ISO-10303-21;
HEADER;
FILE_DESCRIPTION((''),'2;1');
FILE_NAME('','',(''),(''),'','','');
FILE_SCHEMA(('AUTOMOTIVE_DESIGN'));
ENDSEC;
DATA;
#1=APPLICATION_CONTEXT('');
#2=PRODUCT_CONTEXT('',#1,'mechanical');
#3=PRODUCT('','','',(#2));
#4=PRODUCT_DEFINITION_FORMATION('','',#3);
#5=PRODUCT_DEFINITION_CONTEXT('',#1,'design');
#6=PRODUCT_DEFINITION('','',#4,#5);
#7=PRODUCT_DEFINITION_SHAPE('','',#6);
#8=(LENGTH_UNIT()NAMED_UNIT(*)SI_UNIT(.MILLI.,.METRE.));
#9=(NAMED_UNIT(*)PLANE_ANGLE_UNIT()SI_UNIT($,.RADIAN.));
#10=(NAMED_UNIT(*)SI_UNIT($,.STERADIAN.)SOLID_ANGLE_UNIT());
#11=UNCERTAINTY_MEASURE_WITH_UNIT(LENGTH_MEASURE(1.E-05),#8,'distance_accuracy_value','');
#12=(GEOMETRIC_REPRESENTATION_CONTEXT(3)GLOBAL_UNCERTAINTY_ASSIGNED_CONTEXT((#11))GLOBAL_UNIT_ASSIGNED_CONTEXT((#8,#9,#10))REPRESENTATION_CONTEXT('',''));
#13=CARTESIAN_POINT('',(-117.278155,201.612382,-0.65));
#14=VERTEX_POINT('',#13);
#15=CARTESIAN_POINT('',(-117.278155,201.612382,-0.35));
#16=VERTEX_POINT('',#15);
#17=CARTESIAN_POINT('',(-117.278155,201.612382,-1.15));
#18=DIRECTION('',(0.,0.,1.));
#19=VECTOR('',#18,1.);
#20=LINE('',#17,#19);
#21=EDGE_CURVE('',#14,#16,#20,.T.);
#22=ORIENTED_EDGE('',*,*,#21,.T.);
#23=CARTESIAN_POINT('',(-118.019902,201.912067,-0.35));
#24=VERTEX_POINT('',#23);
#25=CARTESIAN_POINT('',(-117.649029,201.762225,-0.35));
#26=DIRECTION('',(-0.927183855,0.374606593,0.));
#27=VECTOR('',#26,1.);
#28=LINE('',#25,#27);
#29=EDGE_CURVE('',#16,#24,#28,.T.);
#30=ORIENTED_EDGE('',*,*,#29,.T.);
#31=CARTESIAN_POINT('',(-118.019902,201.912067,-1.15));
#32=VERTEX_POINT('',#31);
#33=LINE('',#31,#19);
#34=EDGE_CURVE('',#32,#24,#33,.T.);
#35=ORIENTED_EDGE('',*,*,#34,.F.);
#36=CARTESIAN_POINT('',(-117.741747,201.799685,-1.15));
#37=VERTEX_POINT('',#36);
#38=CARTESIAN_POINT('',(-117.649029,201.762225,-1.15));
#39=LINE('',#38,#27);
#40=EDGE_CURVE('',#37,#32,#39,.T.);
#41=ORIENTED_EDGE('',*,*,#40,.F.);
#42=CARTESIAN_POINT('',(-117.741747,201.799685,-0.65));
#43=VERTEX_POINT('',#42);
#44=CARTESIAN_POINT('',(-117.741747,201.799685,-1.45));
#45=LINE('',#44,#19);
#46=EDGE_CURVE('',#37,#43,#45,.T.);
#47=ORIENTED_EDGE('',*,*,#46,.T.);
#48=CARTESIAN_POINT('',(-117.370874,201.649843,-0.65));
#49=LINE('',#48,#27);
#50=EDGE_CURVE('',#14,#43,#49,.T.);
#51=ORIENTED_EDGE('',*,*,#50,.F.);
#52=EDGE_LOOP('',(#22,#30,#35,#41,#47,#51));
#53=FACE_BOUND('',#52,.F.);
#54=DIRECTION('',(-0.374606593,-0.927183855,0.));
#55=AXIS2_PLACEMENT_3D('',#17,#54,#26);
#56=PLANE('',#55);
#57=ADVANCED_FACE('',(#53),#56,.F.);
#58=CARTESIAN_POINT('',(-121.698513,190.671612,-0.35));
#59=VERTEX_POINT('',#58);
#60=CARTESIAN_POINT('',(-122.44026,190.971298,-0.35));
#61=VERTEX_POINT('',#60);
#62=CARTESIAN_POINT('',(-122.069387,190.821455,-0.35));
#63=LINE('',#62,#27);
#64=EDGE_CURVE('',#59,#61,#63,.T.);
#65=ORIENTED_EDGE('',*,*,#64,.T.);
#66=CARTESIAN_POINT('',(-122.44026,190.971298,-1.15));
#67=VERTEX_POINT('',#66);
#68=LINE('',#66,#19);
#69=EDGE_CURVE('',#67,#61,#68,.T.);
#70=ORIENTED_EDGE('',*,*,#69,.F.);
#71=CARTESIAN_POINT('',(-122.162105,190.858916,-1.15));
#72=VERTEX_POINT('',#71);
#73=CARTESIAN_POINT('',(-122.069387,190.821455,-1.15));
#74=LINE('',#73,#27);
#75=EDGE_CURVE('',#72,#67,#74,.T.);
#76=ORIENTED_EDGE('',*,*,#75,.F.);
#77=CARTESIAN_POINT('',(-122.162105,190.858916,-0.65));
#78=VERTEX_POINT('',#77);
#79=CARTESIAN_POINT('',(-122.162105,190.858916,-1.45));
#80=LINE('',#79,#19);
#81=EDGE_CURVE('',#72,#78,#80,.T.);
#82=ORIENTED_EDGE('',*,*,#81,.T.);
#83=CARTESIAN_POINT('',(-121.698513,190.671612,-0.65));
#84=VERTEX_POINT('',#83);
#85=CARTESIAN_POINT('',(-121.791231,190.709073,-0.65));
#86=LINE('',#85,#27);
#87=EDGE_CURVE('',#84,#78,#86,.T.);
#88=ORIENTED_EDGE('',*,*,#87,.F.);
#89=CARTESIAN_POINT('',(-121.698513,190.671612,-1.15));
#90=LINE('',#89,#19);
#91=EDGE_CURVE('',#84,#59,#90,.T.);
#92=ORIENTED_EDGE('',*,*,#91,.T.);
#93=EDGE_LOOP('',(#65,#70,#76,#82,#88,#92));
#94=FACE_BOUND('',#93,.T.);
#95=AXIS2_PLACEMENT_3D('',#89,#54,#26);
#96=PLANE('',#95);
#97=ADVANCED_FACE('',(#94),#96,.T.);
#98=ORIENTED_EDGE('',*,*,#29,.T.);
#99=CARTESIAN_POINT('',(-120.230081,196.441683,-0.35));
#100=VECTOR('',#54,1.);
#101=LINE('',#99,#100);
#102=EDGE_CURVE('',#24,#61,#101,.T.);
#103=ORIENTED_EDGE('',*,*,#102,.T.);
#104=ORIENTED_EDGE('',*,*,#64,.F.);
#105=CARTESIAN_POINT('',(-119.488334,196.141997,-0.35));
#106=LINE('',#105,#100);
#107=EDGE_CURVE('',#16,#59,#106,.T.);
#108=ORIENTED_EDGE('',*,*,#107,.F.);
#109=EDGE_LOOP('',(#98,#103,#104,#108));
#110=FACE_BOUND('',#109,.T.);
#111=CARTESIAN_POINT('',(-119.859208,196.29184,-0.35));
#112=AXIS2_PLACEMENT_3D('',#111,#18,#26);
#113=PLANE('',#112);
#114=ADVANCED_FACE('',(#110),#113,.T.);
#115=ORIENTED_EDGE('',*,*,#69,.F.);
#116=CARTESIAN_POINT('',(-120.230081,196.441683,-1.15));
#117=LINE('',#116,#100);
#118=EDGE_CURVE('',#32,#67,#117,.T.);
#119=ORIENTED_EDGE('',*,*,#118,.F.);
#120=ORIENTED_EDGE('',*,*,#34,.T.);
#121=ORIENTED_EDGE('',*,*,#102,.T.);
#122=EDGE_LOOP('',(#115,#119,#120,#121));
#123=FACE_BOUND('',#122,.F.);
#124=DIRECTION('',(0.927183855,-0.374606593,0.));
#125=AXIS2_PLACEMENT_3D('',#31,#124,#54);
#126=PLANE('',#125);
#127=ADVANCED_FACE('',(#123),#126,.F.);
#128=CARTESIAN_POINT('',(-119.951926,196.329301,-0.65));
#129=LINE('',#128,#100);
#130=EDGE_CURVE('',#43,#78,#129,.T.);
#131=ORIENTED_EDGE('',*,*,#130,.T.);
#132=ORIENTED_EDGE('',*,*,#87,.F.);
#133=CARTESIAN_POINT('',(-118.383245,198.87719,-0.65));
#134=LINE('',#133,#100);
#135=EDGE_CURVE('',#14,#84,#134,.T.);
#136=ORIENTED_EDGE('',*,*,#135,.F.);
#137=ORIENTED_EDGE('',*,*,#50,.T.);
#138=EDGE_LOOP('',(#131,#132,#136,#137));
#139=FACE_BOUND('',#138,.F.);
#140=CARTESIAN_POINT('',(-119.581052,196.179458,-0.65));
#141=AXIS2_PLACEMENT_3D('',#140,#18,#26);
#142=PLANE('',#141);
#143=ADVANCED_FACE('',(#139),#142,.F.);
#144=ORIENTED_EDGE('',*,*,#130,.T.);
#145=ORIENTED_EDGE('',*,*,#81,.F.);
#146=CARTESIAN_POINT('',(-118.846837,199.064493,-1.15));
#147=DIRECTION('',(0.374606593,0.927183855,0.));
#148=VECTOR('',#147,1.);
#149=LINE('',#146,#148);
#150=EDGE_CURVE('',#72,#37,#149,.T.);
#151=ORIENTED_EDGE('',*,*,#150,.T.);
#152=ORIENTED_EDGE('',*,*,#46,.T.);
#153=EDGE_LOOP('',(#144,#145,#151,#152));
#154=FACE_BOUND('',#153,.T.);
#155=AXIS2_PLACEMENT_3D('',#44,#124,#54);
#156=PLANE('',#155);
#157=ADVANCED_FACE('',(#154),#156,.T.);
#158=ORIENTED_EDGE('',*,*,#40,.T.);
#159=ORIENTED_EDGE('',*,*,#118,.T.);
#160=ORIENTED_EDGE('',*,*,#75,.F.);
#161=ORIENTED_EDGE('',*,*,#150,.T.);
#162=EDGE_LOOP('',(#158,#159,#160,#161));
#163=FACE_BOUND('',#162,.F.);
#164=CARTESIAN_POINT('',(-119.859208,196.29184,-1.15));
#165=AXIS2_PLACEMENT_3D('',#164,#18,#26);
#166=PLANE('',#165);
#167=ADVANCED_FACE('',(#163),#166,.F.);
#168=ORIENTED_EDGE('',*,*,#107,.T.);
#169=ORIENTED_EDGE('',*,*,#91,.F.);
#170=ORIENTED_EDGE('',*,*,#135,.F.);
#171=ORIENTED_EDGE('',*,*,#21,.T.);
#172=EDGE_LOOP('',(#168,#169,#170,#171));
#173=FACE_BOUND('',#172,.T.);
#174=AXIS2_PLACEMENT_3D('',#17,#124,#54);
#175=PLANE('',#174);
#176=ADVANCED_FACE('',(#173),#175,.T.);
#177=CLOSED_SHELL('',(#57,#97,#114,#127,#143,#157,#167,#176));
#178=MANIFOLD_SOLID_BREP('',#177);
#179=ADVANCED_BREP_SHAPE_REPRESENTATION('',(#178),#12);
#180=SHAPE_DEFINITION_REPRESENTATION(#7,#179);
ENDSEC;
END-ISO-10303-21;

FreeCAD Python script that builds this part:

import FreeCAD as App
import Part
import Sketcher

doc = App.newDocument("Part")
params = doc.addObject("Spreadsheet::Sheet", "Params")
for row, (alias, value) in enumerate([
    ("sketch1_width", "0.8 mm"),
    ("sketch1_height", "11.8 mm"),
    ("pad1_length", "0.8 mm"),
    ("sketch2_width", "0.8 mm"),
    ("sketch2_height", "11.8 mm"),
    ("pad2_length", "0.8 mm"),
], start=1):
    params.set(f"A{row}", alias)
    params.set(f"B{row}", "=" + value)
    params.setAlias(f"B{row}", alias)

body = doc.addObject("PartDesign::Body", "Body")

# Sketch on XY plane
sketch1 = doc.addObject("Sketcher::SketchObject", "Sketch")
body.addObject(sketch1)
sketch1.AttachmentSupport = (doc.XY_Plane, [""])
sketch1.MapMode = "FlatFace"
sketch1.addGeometry(Part.LineSegment(App.Vector(0, 11.8, 0), App.Vector(0, 0, 0)), False)
sketch1.addGeometry(Part.LineSegment(App.Vector(0, 0, 0), App.Vector(0.8, 0, 0)), False)
sketch1.addGeometry(Part.LineSegment(App.Vector(0.8, 0, 0), App.Vector(0.8, 11.8, 0)), False)
sketch1.addGeometry(Part.LineSegment(App.Vector(0.8, 11.8, 0), App.Vector(0, 11.8, 0)), False)
sketch1.addConstraint(Sketcher.Constraint("Coincident", 0, 2, 1, 1))
sketch1.addConstraint(Sketcher.Constraint("Coincident", 1, 2, 2, 1))
sketch1.addConstraint(Sketcher.Constraint("Coincident", 2, 2, 3, 1))
sketch1.addConstraint(Sketcher.Constraint("Coincident", 3, 2, 0, 1))
sketch1.addConstraint(Sketcher.Constraint("Vertical", 0))
sketch1.addConstraint(Sketcher.Constraint("Horizontal", 1))
sketch1.addConstraint(Sketcher.Constraint("Vertical", 2))
sketch1.addConstraint(Sketcher.Constraint("Horizontal", 3))
sketch1.addConstraint(Sketcher.Constraint("Coincident", 0, 2, -1, 1))
sketch1.addConstraint(Sketcher.Constraint("DistanceX", 1, 1, 1, 2, 0.8))
sketch1.addConstraint(Sketcher.Constraint("DistanceY", 0, 2, 0, 1, 11.8))
sketch1.setExpression("Constraints[9]", "Params.sketch1_width")
sketch1.setExpression("Constraints[10]", "Params.sketch1_height")
pad1 = doc.addObject("PartDesign::Pad", "Pad")
body.addObject(pad1)
pad1.Profile = sketch1
pad1.setExpression("Length", "Params.pad1_length")
body2 = doc.addObject("PartDesign::Body", "Body001")

# Sketch on XY plane
sketch2 = doc.addObject("Sketcher::SketchObject", "Sketch001")
body2.addObject(sketch2)
sketch2.AttachmentSupport = (doc.getObject("XY_Plane001"), [""])
sketch2.MapMode = "FlatFace"
sketch2.AttachmentOffset = App.Placement(App.Vector(0, 0, 0.3), App.Rotation())
sketch2.addGeometry(Part.LineSegment(App.Vector(0.3, 11.8, 0), App.Vector(0.3, 0, 0)), False)
sketch2.addGeometry(Part.LineSegment(App.Vector(0.3, 0, 0), App.Vector(1.1, 0, 0)), False)
sketch2.addGeometry(Part.LineSegment(App.Vector(1.1, 0, 0), App.Vector(1.1, 11.8, 0)), False)
sketch2.addGeometry(Part.LineSegment(App.Vector(1.1, 11.8, 0), App.Vector(0.3, 11.8, 0)), False)
sketch2.addConstraint(Sketcher.Constraint("Coincident", 0, 2, 1, 1))
sketch2.addConstraint(Sketcher.Constraint("Coincident", 1, 2, 2, 1))
sketch2.addConstraint(Sketcher.Constraint("Coincident", 2, 2, 3, 1))
sketch2.addConstraint(Sketcher.Constraint("Coincident", 3, 2, 0, 1))
sketch2.addConstraint(Sketcher.Constraint("Vertical", 0))
sketch2.addConstraint(Sketcher.Constraint("Horizontal", 1))
sketch2.addConstraint(Sketcher.Constraint("Vertical", 2))
sketch2.addConstraint(Sketcher.Constraint("Horizontal", 3))
sketch2.addConstraint(Sketcher.Constraint("PointOnObject", 0, 2, -1))
sketch2.addConstraint(Sketcher.Constraint("DistanceX", 1, 1, 1, 2, 0.8))
sketch2.addConstraint(Sketcher.Constraint("DistanceY", 0, 2, 0, 1, 11.8))
sketch2.addConstraint(Sketcher.Constraint("DistanceX", -1, 1, 0, 2, 0.3))
sketch2.setExpression("Constraints[9]", "Params.sketch2_width")
sketch2.setExpression("Constraints[10]", "Params.sketch2_height")
pad2 = doc.addObject("PartDesign::Pad", "Pad001")
body2.addObject(pad2)
pad2.Profile = sketch2
pad2.setExpression("Length", "Params.pad2_length")
doc.recompute()

boolean = doc.addObject("PartDesign::Boolean", "Boolean")
body2.addObject(boolean)
boolean.Type = "Cut"
boolean.addObjects([body])
body3 = doc.addObject("PartDesign::Body", "Body002")
doc.recompute()

body2.Placement = App.Placement(App.Vector(-117, 201.5, -1.45), App.Rotation(App.Vector(0, 0, 1), 158))
boolean2 = doc.addObject("PartDesign::Boolean", "Boolean001")
body3.addObject(boolean2)
boolean2.Type = "Fuse"
boolean2.addObjects([body2])

doc.recompute()
